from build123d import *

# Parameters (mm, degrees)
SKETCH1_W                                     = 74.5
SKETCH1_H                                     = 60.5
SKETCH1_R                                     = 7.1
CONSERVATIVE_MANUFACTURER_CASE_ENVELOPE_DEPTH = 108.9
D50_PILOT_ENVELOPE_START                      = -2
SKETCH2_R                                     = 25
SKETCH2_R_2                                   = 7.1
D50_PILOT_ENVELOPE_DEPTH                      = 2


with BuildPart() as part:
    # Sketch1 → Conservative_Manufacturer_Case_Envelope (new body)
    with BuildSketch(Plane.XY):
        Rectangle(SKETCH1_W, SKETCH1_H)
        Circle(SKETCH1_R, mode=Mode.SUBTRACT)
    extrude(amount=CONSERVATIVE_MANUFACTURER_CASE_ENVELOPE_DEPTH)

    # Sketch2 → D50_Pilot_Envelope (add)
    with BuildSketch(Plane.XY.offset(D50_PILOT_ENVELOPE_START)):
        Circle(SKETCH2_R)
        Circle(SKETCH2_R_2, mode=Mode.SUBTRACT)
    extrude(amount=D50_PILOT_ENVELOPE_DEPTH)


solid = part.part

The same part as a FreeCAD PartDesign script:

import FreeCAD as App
import Part
import Sketcher
from FreeCAD import Vector
Q = App.Units.Quantity


def add_polygon(sketch, points):
    """Adds a closed chain of lines whose ends are joined by coincident constraints."""
    first, n = sketch.GeometryCount, len(points)
    for a, b in zip(points, points[1:] + points[:1]):
        sketch.addGeometry(Part.LineSegment(App.Vector(*a, 0), App.Vector(*b, 0)), False)
    for i in range(n):
        sketch.addConstraint(Sketcher.Constraint("Coincident", first + i, 2, first + (i + 1) % n, 1))

doc = App.newDocument("Part")
body = doc.addObject("PartDesign::Body", "Body")

sketch1 = doc.addObject("Sketcher::SketchObject", "Sketch")
body.addObject(sketch1)
sketch1.AttachmentSupport = (doc.XY_Plane, [""])
sketch1.MapMode = "FlatFace"
add_polygon(sketch1, [(-37.25, 30.25), (-37.25, -30.25), (37.25, -30.25), (37.25, 30.25)])
sketch1.addGeometry(Part.Circle(Vector(0, 0, 0), Vector(0, 0, 1), 7.1), False)
sketch1.addConstraint(Sketcher.Constraint("Vertical", 0))
sketch1.addConstraint(Sketcher.Constraint("Horizontal", 1))
sketch1.addConstraint(Sketcher.Constraint("Vertical", 2))
sketch1.addConstraint(Sketcher.Constraint("Horizontal", 3))
sketch1.addConstraint(Sketcher.Constraint("Coincident", 4, 3, -1, 1))
sketch1.addConstraint(Sketcher.Constraint("Symmetric", 0, 2, 2, 2, -1, 1))
sketch1.addConstraint(Sketcher.Constraint("Diameter", 4, Q("14.2 mm")))
sketch1.addConstraint(Sketcher.Constraint("DistanceX", 1, 1, 1, 2, Q("74.5 mm")))
sketch1.addConstraint(Sketcher.Constraint("DistanceY", 0, 2, 0, 1, Q("60.5 mm")))
pad1 = doc.addObject("PartDesign::Pad", "Pad")
body.addObject(pad1)
pad1.Profile = sketch1
pad1.Length = 108.9

sketch2 = doc.addObject("Sketcher::SketchObject", "Sketch001")
body.addObject(sketch2)
sketch2.AttachmentSupport = (doc.XY_Plane, [""])
sketch2.MapMode = "FlatFace"
sketch2.AttachmentOffset = App.Placement(Vector(0, 0, -2), App.Rotation())
sketch2.addGeometry(Part.Circle(Vector(0, 0, 0), Vector(0, 0, 1), 25), False)
sketch2.addGeometry(Part.Circle(Vector(0, 0, 0), Vector(0, 0, 1), 7.1), False)
sketch2.addConstraint(Sketcher.Constraint("Coincident", 0, 3, -1, 1))
sketch2.addConstraint(Sketcher.Constraint("Coincident", 1, 3, -1, 1))
sketch2.addConstraint(Sketcher.Constraint("Diameter", 0, Q("50 mm")))
sketch2.addConstraint(Sketcher.Constraint("Diameter", 1, Q("14.2 mm")))
pad2 = doc.addObject("PartDesign::Pad", "Pad001")
body.addObject(pad2)
pad2.Profile = sketch2
pad2.Length = 2

doc.recompute()
